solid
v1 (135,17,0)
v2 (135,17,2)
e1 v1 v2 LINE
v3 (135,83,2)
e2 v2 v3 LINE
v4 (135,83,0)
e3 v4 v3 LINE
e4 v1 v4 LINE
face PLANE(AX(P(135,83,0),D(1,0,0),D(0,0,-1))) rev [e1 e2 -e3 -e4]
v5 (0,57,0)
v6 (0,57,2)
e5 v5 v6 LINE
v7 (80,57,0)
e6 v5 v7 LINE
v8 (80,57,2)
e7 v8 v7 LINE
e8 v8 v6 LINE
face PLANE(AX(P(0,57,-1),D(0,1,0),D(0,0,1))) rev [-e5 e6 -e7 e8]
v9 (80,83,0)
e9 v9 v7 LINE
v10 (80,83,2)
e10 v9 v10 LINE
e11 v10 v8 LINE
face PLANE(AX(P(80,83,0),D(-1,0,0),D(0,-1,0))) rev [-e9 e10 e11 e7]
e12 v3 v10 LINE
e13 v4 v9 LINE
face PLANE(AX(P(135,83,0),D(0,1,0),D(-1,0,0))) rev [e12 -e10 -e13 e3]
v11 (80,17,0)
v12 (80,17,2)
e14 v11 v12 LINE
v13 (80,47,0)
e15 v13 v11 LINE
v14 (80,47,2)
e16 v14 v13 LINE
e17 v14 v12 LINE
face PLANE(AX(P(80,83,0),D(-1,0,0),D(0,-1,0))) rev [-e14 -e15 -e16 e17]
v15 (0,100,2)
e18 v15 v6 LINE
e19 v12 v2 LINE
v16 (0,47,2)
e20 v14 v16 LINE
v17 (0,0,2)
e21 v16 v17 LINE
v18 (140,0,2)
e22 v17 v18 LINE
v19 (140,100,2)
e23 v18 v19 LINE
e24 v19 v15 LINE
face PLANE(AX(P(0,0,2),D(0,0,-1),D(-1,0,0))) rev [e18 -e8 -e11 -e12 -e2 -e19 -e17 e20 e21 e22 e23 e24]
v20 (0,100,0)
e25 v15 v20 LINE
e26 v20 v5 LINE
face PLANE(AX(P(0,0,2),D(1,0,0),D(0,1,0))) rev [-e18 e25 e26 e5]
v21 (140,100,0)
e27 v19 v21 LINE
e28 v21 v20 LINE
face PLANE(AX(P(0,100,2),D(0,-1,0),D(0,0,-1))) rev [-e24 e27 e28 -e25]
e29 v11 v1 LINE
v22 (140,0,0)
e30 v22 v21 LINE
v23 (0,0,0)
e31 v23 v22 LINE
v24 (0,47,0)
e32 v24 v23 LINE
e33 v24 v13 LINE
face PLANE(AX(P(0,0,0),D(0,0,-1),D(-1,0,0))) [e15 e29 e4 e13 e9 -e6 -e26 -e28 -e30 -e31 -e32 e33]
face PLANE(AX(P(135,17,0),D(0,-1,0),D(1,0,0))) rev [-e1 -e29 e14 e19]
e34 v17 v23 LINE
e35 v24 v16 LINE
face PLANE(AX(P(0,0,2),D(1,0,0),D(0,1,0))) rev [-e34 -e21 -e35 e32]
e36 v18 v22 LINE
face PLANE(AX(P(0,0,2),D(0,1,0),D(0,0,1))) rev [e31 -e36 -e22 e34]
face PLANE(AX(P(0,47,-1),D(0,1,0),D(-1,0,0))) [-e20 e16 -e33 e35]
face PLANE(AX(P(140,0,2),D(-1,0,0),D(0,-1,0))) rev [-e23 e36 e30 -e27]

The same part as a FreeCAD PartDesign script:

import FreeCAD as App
import Part
import Sketcher
from FreeCAD import Vector
Q = App.Units.Quantity


def add_polygon(sketch, points):
    """Adds a closed chain of lines whose ends are joined by coincident constraints."""
    first, n = sketch.GeometryCount, len(points)
    for a, b in zip(points, points[1:] + points[:1]):
        sketch.addGeometry(Part.LineSegment(App.Vector(*a, 0), App.Vector(*b, 0)), False)
    for i in range(n):
        sketch.addConstraint(Sketcher.Constraint("Coincident", first + i, 2, first + (i + 1) % n, 1))

doc = App.newDocument("Part")
body = doc.addObject("PartDesign::Body", "Body")

# Sketch on XY plane
sketch1 = body.newObject("Sketcher::SketchObject", "Sketch")
sketch1.AttachmentSupport = (doc.getObject("XY_Plane"), [""])
sketch1.MapMode = "FlatFace"
add_polygon(sketch1, [(0, 100), (0, 0), (140, 0), (140, 100)])  # lines 0-3
sketch1.addConstraint([
    Sketcher.Constraint("Vertical", 0),
    Sketcher.Constraint("Horizontal", 1),
    Sketcher.Constraint("Vertical", 2),
    Sketcher.Constraint("Horizontal", 3),
    Sketcher.Constraint("Coincident", 0, 2, -1, 1),
    Sketcher.Constraint("DistanceX", 1, 1, 1, 2, Q("140 mm")),
    Sketcher.Constraint("DistanceY", 0, 2, 0, 1, Q("100 mm")),
])
pad1 = body.newObject("PartDesign::Pad", "Pad")
pad1.Profile = sketch1
pad1.Length = 2

# Sketch on XY plane
sketch2 = body.newObject("Sketcher::SketchObject", "Sketch001")
sketch2.AttachmentSupport = (doc.getObject("XY_Plane"), [""])
sketch2.MapMode = "FlatFace"
sketch2.AttachmentOffset = App.Placement(Vector(0, 0, 2), App.Rotation())
add_polygon(sketch2, [(80, 83), (80, 17), (135, 17), (135, 83)])  # lines 0-3
sketch2.addConstraint([
    Sketcher.Constraint("Vertical", 0),
    Sketcher.Constraint("Horizontal", 1),
    Sketcher.Constraint("Vertical", 2),
    Sketcher.Constraint("Horizontal", 3),
    Sketcher.Constraint("DistanceX", 1, 1, 1, 2, Q("55 mm")),
    Sketcher.Constraint("DistanceY", 0, 2, 0, 1, Q("66 mm")),
    Sketcher.Constraint("DistanceX", -1, 1, 0, 2, Q("80 mm")),
    Sketcher.Constraint("DistanceY", -1, 1, 0, 2, Q("17 mm")),
])
pocket1 = body.newObject("PartDesign::Pocket", "Pocket")
pocket1.Profile = sketch2
pocket1.Length = 2

# Sketch on XY plane
sketch3 = body.newObject("Sketcher::SketchObject", "Sketch002")
sketch3.AttachmentSupport = (doc.getObject("XY_Plane"), [""])
sketch3.MapMode = "FlatFace"
sketch3.AttachmentOffset = App.Placement(Vector(0, 0, 2), App.Rotation())
add_polygon(sketch3, [(0, 57), (0, 47), (80, 47), (80, 57)])  # lines 0-3
sketch3.addConstraint([
    Sketcher.Constraint("Vertical", 0),
    Sketcher.Constraint("Horizontal", 1),
    Sketcher.Constraint("Vertical", 2),
    Sketcher.Constraint("Horizontal", 3),
    Sketcher.Constraint("PointOnObject", 0, 2, -2),
    Sketcher.Constraint("DistanceX", 1, 1, 1, 2, Q("80 mm")),
    Sketcher.Constraint("DistanceY", 0, 2, 0, 1, Q("10 mm")),
    Sketcher.Constraint("DistanceY", -1, 1, 0, 2, Q("47 mm")),
])
pocket2 = body.newObject("PartDesign::Pocket", "Pocket001")
pocket2.Profile = sketch3
pocket2.Length = 3

doc.recompute()
